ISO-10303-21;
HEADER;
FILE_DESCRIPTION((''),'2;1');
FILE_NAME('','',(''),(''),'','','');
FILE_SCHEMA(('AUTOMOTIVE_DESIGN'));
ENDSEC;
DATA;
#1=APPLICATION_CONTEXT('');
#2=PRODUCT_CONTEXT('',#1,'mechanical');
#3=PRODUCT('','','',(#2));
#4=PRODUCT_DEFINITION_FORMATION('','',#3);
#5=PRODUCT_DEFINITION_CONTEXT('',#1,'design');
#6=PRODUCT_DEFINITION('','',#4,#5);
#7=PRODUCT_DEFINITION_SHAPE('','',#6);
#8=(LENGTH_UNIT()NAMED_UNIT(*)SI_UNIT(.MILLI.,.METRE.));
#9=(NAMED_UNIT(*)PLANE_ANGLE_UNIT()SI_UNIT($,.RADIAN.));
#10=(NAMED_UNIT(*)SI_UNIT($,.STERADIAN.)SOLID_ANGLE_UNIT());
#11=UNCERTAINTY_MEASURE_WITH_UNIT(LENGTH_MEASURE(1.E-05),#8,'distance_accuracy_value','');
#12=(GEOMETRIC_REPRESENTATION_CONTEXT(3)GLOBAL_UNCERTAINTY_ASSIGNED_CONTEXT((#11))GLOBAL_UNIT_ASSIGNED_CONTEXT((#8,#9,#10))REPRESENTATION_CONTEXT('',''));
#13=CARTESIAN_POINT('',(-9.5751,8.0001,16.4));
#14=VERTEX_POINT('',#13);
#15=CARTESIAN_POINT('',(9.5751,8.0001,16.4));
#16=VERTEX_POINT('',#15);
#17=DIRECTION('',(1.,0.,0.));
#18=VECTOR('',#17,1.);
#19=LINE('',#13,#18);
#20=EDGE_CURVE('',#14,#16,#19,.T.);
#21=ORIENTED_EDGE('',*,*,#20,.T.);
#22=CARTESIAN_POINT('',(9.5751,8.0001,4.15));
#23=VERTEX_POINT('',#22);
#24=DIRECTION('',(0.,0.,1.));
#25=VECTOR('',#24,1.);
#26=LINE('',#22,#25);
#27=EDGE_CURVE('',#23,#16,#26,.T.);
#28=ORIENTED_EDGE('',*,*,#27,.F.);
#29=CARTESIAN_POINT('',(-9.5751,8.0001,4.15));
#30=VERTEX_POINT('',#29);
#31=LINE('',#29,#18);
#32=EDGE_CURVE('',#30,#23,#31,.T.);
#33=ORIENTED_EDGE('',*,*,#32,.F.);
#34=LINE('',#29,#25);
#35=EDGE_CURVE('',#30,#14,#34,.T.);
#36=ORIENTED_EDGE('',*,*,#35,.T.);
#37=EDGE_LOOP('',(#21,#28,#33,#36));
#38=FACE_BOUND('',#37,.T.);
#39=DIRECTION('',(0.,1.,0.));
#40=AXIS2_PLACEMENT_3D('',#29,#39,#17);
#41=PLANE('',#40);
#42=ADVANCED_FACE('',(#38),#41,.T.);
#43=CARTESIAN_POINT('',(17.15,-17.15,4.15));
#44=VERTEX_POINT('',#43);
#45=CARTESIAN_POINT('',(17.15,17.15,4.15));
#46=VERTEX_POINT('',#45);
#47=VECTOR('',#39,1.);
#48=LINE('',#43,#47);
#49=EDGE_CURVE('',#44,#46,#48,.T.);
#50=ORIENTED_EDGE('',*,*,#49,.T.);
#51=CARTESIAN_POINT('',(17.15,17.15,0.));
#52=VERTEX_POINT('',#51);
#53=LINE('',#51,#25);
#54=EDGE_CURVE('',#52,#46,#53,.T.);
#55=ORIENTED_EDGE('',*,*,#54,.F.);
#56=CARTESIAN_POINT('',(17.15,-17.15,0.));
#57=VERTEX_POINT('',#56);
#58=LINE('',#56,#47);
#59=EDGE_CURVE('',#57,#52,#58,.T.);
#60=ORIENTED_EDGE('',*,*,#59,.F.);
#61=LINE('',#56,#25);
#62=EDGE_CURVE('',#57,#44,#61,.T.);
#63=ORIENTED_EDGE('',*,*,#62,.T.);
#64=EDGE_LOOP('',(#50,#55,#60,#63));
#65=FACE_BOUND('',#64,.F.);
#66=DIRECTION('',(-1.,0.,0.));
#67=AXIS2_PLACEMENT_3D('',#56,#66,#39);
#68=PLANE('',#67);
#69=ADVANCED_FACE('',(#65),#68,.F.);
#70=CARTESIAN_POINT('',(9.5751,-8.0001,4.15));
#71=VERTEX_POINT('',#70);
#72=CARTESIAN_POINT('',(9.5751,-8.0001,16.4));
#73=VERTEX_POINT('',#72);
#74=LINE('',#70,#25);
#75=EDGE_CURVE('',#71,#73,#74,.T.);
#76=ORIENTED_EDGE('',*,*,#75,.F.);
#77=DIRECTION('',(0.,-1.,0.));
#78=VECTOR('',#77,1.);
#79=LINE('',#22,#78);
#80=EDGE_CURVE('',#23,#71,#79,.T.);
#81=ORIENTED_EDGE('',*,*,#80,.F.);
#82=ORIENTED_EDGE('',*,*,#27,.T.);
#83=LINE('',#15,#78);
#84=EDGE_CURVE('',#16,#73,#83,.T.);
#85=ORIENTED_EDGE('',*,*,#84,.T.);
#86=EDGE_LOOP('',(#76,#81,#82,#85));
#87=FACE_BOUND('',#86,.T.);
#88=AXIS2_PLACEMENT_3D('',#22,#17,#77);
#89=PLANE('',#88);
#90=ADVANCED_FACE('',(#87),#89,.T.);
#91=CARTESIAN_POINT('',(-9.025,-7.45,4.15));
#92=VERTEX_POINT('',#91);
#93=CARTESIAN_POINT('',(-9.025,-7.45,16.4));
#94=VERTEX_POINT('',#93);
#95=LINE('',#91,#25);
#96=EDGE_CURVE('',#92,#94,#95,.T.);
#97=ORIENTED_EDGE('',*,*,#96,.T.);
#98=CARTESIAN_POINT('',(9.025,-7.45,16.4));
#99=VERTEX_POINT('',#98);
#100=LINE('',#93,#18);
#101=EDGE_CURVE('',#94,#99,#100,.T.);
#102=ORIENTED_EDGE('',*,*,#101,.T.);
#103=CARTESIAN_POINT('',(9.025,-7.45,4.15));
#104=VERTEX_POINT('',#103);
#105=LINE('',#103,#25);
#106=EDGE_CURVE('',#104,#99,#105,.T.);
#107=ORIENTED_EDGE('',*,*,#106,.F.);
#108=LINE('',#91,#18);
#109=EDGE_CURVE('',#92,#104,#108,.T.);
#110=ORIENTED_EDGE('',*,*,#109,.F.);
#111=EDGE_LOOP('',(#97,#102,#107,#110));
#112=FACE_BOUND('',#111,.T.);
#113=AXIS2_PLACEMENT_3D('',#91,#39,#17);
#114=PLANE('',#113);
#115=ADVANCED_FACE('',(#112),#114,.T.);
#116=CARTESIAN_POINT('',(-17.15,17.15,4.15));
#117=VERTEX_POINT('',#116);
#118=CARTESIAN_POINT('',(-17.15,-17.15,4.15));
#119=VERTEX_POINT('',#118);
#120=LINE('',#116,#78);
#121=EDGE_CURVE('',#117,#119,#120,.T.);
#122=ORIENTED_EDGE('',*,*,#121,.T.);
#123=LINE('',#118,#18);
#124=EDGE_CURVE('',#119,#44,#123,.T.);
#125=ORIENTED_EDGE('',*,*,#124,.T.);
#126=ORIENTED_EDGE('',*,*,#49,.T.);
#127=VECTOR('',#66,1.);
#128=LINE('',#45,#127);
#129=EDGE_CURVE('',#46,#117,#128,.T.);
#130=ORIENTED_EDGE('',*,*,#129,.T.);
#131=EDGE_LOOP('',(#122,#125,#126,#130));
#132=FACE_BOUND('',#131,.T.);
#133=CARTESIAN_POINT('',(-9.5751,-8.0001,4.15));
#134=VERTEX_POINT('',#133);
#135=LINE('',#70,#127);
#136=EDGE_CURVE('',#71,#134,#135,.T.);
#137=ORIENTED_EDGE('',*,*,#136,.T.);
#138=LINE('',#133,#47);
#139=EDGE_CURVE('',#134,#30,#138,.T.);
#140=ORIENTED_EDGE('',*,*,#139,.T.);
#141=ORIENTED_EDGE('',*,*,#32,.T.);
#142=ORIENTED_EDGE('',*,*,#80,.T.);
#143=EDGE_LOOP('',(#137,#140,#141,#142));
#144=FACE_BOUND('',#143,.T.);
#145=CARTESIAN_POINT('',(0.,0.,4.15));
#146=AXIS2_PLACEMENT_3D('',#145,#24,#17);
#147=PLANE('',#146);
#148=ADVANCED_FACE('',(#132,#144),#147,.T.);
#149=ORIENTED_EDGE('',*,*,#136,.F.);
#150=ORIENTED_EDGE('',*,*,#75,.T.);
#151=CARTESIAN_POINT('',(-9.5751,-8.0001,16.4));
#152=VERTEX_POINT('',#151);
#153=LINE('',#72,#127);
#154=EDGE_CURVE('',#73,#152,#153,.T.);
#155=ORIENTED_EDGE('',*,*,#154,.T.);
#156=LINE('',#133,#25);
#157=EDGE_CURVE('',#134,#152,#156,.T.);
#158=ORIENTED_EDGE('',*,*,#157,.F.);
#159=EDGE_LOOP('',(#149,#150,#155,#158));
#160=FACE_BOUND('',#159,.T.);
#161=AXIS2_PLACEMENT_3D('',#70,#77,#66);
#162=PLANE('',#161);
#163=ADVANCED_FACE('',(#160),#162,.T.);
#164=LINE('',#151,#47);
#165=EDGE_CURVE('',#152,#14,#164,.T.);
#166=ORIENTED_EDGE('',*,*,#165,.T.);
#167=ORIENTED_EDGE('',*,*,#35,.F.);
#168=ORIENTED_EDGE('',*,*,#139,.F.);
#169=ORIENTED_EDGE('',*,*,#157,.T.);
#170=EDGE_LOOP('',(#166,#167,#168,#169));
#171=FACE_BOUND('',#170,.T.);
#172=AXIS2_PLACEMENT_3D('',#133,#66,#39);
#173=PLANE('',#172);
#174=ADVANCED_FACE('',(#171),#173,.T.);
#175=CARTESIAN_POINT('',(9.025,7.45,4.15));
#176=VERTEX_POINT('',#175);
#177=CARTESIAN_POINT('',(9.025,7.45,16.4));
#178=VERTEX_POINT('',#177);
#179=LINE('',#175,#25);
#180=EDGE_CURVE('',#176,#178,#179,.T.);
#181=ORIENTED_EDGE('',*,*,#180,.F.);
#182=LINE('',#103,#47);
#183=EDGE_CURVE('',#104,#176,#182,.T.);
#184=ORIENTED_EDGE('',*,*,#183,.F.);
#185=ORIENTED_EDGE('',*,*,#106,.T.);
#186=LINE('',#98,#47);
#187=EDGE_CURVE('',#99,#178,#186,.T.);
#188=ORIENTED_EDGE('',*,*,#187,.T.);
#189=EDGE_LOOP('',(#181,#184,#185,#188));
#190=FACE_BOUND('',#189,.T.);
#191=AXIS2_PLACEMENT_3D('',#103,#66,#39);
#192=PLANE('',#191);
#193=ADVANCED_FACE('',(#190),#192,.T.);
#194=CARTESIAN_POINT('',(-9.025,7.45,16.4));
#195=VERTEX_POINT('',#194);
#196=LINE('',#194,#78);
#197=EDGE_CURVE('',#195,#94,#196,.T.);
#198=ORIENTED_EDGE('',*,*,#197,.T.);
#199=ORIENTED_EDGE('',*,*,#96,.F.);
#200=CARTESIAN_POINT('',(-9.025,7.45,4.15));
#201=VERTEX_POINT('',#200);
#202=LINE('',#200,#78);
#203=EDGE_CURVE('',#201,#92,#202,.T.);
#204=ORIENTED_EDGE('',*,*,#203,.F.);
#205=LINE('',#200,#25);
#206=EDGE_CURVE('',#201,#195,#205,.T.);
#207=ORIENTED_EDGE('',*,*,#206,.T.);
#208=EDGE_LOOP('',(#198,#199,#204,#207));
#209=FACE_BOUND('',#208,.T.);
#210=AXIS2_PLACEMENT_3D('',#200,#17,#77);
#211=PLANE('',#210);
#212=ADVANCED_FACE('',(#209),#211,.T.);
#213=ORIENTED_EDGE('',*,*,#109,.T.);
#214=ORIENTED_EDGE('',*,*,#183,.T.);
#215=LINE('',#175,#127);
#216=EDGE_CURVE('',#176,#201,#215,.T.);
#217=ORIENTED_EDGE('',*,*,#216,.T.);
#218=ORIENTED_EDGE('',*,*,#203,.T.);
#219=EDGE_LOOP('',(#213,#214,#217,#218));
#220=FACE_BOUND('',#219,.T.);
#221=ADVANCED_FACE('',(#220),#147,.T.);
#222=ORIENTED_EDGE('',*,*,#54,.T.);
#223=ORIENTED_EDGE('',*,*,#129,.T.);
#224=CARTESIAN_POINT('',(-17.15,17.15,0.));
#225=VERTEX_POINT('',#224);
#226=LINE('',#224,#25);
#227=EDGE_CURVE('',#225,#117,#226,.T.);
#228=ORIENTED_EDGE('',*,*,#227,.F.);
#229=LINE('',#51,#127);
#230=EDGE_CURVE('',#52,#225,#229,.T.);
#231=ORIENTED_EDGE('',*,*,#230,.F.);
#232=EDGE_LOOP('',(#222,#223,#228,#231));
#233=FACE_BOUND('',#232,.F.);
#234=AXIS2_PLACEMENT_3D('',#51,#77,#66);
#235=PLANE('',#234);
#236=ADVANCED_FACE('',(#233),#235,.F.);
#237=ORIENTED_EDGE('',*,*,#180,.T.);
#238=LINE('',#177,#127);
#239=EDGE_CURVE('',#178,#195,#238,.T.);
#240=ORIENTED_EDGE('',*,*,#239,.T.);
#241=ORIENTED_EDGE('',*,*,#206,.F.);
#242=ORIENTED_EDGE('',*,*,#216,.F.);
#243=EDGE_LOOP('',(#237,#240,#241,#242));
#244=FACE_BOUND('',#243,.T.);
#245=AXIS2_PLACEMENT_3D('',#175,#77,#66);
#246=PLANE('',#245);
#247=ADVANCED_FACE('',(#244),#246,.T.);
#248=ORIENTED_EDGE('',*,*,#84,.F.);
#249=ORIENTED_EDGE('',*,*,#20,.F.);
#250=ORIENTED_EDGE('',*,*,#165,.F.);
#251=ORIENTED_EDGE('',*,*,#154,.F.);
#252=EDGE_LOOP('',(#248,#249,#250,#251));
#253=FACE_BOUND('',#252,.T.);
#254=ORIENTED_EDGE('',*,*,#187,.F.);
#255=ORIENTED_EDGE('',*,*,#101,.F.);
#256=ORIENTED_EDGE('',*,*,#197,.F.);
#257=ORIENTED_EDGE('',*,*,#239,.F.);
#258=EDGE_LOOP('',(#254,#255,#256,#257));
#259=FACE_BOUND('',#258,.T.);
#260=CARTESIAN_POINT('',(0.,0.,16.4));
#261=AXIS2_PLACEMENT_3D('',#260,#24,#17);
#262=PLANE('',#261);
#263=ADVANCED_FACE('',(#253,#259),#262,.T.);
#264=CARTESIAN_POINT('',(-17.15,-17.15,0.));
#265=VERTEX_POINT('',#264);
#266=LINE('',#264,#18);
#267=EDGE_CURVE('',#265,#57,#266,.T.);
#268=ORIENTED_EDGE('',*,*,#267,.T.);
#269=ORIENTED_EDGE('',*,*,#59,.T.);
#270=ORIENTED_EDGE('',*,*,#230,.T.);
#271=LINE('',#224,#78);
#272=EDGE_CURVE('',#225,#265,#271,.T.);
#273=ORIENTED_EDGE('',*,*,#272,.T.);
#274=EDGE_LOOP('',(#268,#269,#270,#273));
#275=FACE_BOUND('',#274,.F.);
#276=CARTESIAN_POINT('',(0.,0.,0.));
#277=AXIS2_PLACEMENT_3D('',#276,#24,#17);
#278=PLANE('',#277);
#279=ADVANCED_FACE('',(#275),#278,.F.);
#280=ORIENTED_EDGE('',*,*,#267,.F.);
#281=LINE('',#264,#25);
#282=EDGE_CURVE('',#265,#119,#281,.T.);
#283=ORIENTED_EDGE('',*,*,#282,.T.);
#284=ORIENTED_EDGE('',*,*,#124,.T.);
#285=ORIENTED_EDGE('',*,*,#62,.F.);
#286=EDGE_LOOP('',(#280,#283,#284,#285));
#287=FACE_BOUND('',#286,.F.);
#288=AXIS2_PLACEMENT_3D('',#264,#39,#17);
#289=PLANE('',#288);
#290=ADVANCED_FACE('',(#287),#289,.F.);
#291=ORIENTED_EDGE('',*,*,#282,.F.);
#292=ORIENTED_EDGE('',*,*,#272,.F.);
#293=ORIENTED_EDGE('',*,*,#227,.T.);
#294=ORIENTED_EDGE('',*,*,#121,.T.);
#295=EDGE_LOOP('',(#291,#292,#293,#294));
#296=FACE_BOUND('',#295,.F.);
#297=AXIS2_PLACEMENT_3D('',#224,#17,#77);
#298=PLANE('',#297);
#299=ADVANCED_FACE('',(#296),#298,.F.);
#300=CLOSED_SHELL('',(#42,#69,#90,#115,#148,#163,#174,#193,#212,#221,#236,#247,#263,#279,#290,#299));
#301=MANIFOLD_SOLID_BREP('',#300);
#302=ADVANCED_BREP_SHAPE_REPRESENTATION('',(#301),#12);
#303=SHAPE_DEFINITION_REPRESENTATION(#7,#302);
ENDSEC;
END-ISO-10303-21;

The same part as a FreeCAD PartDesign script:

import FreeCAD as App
import Part
import Sketcher
from FreeCAD import Vector


def add_polygon(sketch, points):
    """Adds a closed chain of lines whose ends are joined by coincident constraints."""
    first, n = sketch.GeometryCount, len(points)
    for a, b in zip(points, points[1:] + points[:1]):
        sketch.addGeometry(Part.LineSegment(App.Vector(*a, 0), App.Vector(*b, 0)), False)
    for i in range(n):
        sketch.addConstraint(Sketcher.Constraint("Coincident", first + i, 2, first + (i + 1) % n, 1))

doc = App.newDocument("Part")
params = doc.addObject("Spreadsheet::Sheet", "Params")
for row, (alias, value) in enumerate([
    ("sketch1_width", "34.3 mm"),
    ("pad1_length", "4.15 mm"),
    ("sketch2_height", "14.9 mm"),
    ("sketch2_width", "18.05 mm"),
    ("pad2_length", "12.25 mm"),
], start=1):
    params.set(f"A{row}", alias)
    params.set(f"B{row}", "=" + value)
    params.setAlias(f"B{row}", alias)

body = doc.addObject("PartDesign::Body", "Body")

sketch1 = doc.addObject("Sketcher::SketchObject", "Sketch")
body.addObject(sketch1)
sketch1.AttachmentSupport = (doc.XY_Plane, [""])
sketch1.MapMode = "FlatFace"
add_polygon(sketch1, [(-17.15, 17.15), (-17.15, -17.15), (17.15, -17.15), (17.15, 17.15)])
sketch1.addConstraint(Sketcher.Constraint("Vertical", 0))
sketch1.addConstraint(Sketcher.Constraint("Horizontal", 1))
sketch1.addConstraint(Sketcher.Constraint("Vertical", 2))
sketch1.addConstraint(Sketcher.Constraint("Horizontal", 3))
sketch1.addConstraint(Sketcher.Constraint("Symmetric", 0, 2, 2, 2, -1, 1))
sketch1.addConstraint(Sketcher.Constraint("Equal", 3, 0))
sketch1.addConstraint(Sketcher.Constraint("DistanceX", 1, 1, 1, 2, 34.3))
sketch1.setExpression("Constraints[10]", "Params.sketch1_width")
pad1 = doc.addObject("PartDesign::Pad", "Pad")
body.addObject(pad1)
pad1.Profile = sketch1
pad1.setExpression("Length", "Params.pad1_length")

sketch2 = doc.addObject("Sketcher::SketchObject", "Sketch001")
body.addObject(sketch2)
sketch2.AttachmentSupport = (doc.XY_Plane, [""])
sketch2.MapMode = "FlatFace"
sketch2.AttachmentOffset = App.Placement(Vector(0, 0, 4.15), App.Rotation())
add_polygon(sketch2, [(9.5751, 8.0001), (-9.5751, 8.0001), (-9.5751, -8.0001), (9.5751, -8.0001)])
add_polygon(sketch2, [(9.025, -7.45), (-9.025, -7.45), (-9.025, 7.45), (9.025, 7.45)])
sketch2.addConstraint(Sketcher.Constraint("Horizontal", 0))
sketch2.addConstraint(Sketcher.Constraint("Vertical", 1))
sketch2.addConstraint(Sketcher.Constraint("Horizontal", 2))
sketch2.addConstraint(Sketcher.Constraint("Vertical", 3))
sketch2.addConstraint(Sketcher.Constraint("Horizontal", 4))
sketch2.addConstraint(Sketcher.Constraint("Vertical", 5))
sketch2.addConstraint(Sketcher.Constraint("Horizontal", 6))
sketch2.addConstraint(Sketcher.Constraint("Vertical", 7))
sketch2.addConstraint(Sketcher.Constraint("Symmetric", 0, 2, 2, 2, -1, 1))
sketch2.addConstraint(Sketcher.Constraint("Symmetric", 4, 2, 6, 2, -1, 1))
sketch2.addConstraint(Sketcher.Constraint("DistanceY", 5, 1, 5, 2, 14.9))
sketch2.addConstraint(Sketcher.Constraint("DistanceX", 4, 2, 4, 1, 18.05))
sketch2.addConstraint(Sketcher.Constraint("DistanceY", -1, 1, 0, 2, 8.0))
sketch2.addConstraint(Sketcher.Constraint("DistanceX", 4, 2, 2, 2, 18.6))
sketch2.setExpression("Constraints[18]", "Params.sketch2_height")
sketch2.setExpression("Constraints[19]", "Params.sketch2_width")
pad2 = doc.addObject("PartDesign::Pad", "Pad001")
body.addObject(pad2)
pad2.Profile = sketch2
pad2.setExpression("Length", "Params.pad2_length")

doc.recompute()
